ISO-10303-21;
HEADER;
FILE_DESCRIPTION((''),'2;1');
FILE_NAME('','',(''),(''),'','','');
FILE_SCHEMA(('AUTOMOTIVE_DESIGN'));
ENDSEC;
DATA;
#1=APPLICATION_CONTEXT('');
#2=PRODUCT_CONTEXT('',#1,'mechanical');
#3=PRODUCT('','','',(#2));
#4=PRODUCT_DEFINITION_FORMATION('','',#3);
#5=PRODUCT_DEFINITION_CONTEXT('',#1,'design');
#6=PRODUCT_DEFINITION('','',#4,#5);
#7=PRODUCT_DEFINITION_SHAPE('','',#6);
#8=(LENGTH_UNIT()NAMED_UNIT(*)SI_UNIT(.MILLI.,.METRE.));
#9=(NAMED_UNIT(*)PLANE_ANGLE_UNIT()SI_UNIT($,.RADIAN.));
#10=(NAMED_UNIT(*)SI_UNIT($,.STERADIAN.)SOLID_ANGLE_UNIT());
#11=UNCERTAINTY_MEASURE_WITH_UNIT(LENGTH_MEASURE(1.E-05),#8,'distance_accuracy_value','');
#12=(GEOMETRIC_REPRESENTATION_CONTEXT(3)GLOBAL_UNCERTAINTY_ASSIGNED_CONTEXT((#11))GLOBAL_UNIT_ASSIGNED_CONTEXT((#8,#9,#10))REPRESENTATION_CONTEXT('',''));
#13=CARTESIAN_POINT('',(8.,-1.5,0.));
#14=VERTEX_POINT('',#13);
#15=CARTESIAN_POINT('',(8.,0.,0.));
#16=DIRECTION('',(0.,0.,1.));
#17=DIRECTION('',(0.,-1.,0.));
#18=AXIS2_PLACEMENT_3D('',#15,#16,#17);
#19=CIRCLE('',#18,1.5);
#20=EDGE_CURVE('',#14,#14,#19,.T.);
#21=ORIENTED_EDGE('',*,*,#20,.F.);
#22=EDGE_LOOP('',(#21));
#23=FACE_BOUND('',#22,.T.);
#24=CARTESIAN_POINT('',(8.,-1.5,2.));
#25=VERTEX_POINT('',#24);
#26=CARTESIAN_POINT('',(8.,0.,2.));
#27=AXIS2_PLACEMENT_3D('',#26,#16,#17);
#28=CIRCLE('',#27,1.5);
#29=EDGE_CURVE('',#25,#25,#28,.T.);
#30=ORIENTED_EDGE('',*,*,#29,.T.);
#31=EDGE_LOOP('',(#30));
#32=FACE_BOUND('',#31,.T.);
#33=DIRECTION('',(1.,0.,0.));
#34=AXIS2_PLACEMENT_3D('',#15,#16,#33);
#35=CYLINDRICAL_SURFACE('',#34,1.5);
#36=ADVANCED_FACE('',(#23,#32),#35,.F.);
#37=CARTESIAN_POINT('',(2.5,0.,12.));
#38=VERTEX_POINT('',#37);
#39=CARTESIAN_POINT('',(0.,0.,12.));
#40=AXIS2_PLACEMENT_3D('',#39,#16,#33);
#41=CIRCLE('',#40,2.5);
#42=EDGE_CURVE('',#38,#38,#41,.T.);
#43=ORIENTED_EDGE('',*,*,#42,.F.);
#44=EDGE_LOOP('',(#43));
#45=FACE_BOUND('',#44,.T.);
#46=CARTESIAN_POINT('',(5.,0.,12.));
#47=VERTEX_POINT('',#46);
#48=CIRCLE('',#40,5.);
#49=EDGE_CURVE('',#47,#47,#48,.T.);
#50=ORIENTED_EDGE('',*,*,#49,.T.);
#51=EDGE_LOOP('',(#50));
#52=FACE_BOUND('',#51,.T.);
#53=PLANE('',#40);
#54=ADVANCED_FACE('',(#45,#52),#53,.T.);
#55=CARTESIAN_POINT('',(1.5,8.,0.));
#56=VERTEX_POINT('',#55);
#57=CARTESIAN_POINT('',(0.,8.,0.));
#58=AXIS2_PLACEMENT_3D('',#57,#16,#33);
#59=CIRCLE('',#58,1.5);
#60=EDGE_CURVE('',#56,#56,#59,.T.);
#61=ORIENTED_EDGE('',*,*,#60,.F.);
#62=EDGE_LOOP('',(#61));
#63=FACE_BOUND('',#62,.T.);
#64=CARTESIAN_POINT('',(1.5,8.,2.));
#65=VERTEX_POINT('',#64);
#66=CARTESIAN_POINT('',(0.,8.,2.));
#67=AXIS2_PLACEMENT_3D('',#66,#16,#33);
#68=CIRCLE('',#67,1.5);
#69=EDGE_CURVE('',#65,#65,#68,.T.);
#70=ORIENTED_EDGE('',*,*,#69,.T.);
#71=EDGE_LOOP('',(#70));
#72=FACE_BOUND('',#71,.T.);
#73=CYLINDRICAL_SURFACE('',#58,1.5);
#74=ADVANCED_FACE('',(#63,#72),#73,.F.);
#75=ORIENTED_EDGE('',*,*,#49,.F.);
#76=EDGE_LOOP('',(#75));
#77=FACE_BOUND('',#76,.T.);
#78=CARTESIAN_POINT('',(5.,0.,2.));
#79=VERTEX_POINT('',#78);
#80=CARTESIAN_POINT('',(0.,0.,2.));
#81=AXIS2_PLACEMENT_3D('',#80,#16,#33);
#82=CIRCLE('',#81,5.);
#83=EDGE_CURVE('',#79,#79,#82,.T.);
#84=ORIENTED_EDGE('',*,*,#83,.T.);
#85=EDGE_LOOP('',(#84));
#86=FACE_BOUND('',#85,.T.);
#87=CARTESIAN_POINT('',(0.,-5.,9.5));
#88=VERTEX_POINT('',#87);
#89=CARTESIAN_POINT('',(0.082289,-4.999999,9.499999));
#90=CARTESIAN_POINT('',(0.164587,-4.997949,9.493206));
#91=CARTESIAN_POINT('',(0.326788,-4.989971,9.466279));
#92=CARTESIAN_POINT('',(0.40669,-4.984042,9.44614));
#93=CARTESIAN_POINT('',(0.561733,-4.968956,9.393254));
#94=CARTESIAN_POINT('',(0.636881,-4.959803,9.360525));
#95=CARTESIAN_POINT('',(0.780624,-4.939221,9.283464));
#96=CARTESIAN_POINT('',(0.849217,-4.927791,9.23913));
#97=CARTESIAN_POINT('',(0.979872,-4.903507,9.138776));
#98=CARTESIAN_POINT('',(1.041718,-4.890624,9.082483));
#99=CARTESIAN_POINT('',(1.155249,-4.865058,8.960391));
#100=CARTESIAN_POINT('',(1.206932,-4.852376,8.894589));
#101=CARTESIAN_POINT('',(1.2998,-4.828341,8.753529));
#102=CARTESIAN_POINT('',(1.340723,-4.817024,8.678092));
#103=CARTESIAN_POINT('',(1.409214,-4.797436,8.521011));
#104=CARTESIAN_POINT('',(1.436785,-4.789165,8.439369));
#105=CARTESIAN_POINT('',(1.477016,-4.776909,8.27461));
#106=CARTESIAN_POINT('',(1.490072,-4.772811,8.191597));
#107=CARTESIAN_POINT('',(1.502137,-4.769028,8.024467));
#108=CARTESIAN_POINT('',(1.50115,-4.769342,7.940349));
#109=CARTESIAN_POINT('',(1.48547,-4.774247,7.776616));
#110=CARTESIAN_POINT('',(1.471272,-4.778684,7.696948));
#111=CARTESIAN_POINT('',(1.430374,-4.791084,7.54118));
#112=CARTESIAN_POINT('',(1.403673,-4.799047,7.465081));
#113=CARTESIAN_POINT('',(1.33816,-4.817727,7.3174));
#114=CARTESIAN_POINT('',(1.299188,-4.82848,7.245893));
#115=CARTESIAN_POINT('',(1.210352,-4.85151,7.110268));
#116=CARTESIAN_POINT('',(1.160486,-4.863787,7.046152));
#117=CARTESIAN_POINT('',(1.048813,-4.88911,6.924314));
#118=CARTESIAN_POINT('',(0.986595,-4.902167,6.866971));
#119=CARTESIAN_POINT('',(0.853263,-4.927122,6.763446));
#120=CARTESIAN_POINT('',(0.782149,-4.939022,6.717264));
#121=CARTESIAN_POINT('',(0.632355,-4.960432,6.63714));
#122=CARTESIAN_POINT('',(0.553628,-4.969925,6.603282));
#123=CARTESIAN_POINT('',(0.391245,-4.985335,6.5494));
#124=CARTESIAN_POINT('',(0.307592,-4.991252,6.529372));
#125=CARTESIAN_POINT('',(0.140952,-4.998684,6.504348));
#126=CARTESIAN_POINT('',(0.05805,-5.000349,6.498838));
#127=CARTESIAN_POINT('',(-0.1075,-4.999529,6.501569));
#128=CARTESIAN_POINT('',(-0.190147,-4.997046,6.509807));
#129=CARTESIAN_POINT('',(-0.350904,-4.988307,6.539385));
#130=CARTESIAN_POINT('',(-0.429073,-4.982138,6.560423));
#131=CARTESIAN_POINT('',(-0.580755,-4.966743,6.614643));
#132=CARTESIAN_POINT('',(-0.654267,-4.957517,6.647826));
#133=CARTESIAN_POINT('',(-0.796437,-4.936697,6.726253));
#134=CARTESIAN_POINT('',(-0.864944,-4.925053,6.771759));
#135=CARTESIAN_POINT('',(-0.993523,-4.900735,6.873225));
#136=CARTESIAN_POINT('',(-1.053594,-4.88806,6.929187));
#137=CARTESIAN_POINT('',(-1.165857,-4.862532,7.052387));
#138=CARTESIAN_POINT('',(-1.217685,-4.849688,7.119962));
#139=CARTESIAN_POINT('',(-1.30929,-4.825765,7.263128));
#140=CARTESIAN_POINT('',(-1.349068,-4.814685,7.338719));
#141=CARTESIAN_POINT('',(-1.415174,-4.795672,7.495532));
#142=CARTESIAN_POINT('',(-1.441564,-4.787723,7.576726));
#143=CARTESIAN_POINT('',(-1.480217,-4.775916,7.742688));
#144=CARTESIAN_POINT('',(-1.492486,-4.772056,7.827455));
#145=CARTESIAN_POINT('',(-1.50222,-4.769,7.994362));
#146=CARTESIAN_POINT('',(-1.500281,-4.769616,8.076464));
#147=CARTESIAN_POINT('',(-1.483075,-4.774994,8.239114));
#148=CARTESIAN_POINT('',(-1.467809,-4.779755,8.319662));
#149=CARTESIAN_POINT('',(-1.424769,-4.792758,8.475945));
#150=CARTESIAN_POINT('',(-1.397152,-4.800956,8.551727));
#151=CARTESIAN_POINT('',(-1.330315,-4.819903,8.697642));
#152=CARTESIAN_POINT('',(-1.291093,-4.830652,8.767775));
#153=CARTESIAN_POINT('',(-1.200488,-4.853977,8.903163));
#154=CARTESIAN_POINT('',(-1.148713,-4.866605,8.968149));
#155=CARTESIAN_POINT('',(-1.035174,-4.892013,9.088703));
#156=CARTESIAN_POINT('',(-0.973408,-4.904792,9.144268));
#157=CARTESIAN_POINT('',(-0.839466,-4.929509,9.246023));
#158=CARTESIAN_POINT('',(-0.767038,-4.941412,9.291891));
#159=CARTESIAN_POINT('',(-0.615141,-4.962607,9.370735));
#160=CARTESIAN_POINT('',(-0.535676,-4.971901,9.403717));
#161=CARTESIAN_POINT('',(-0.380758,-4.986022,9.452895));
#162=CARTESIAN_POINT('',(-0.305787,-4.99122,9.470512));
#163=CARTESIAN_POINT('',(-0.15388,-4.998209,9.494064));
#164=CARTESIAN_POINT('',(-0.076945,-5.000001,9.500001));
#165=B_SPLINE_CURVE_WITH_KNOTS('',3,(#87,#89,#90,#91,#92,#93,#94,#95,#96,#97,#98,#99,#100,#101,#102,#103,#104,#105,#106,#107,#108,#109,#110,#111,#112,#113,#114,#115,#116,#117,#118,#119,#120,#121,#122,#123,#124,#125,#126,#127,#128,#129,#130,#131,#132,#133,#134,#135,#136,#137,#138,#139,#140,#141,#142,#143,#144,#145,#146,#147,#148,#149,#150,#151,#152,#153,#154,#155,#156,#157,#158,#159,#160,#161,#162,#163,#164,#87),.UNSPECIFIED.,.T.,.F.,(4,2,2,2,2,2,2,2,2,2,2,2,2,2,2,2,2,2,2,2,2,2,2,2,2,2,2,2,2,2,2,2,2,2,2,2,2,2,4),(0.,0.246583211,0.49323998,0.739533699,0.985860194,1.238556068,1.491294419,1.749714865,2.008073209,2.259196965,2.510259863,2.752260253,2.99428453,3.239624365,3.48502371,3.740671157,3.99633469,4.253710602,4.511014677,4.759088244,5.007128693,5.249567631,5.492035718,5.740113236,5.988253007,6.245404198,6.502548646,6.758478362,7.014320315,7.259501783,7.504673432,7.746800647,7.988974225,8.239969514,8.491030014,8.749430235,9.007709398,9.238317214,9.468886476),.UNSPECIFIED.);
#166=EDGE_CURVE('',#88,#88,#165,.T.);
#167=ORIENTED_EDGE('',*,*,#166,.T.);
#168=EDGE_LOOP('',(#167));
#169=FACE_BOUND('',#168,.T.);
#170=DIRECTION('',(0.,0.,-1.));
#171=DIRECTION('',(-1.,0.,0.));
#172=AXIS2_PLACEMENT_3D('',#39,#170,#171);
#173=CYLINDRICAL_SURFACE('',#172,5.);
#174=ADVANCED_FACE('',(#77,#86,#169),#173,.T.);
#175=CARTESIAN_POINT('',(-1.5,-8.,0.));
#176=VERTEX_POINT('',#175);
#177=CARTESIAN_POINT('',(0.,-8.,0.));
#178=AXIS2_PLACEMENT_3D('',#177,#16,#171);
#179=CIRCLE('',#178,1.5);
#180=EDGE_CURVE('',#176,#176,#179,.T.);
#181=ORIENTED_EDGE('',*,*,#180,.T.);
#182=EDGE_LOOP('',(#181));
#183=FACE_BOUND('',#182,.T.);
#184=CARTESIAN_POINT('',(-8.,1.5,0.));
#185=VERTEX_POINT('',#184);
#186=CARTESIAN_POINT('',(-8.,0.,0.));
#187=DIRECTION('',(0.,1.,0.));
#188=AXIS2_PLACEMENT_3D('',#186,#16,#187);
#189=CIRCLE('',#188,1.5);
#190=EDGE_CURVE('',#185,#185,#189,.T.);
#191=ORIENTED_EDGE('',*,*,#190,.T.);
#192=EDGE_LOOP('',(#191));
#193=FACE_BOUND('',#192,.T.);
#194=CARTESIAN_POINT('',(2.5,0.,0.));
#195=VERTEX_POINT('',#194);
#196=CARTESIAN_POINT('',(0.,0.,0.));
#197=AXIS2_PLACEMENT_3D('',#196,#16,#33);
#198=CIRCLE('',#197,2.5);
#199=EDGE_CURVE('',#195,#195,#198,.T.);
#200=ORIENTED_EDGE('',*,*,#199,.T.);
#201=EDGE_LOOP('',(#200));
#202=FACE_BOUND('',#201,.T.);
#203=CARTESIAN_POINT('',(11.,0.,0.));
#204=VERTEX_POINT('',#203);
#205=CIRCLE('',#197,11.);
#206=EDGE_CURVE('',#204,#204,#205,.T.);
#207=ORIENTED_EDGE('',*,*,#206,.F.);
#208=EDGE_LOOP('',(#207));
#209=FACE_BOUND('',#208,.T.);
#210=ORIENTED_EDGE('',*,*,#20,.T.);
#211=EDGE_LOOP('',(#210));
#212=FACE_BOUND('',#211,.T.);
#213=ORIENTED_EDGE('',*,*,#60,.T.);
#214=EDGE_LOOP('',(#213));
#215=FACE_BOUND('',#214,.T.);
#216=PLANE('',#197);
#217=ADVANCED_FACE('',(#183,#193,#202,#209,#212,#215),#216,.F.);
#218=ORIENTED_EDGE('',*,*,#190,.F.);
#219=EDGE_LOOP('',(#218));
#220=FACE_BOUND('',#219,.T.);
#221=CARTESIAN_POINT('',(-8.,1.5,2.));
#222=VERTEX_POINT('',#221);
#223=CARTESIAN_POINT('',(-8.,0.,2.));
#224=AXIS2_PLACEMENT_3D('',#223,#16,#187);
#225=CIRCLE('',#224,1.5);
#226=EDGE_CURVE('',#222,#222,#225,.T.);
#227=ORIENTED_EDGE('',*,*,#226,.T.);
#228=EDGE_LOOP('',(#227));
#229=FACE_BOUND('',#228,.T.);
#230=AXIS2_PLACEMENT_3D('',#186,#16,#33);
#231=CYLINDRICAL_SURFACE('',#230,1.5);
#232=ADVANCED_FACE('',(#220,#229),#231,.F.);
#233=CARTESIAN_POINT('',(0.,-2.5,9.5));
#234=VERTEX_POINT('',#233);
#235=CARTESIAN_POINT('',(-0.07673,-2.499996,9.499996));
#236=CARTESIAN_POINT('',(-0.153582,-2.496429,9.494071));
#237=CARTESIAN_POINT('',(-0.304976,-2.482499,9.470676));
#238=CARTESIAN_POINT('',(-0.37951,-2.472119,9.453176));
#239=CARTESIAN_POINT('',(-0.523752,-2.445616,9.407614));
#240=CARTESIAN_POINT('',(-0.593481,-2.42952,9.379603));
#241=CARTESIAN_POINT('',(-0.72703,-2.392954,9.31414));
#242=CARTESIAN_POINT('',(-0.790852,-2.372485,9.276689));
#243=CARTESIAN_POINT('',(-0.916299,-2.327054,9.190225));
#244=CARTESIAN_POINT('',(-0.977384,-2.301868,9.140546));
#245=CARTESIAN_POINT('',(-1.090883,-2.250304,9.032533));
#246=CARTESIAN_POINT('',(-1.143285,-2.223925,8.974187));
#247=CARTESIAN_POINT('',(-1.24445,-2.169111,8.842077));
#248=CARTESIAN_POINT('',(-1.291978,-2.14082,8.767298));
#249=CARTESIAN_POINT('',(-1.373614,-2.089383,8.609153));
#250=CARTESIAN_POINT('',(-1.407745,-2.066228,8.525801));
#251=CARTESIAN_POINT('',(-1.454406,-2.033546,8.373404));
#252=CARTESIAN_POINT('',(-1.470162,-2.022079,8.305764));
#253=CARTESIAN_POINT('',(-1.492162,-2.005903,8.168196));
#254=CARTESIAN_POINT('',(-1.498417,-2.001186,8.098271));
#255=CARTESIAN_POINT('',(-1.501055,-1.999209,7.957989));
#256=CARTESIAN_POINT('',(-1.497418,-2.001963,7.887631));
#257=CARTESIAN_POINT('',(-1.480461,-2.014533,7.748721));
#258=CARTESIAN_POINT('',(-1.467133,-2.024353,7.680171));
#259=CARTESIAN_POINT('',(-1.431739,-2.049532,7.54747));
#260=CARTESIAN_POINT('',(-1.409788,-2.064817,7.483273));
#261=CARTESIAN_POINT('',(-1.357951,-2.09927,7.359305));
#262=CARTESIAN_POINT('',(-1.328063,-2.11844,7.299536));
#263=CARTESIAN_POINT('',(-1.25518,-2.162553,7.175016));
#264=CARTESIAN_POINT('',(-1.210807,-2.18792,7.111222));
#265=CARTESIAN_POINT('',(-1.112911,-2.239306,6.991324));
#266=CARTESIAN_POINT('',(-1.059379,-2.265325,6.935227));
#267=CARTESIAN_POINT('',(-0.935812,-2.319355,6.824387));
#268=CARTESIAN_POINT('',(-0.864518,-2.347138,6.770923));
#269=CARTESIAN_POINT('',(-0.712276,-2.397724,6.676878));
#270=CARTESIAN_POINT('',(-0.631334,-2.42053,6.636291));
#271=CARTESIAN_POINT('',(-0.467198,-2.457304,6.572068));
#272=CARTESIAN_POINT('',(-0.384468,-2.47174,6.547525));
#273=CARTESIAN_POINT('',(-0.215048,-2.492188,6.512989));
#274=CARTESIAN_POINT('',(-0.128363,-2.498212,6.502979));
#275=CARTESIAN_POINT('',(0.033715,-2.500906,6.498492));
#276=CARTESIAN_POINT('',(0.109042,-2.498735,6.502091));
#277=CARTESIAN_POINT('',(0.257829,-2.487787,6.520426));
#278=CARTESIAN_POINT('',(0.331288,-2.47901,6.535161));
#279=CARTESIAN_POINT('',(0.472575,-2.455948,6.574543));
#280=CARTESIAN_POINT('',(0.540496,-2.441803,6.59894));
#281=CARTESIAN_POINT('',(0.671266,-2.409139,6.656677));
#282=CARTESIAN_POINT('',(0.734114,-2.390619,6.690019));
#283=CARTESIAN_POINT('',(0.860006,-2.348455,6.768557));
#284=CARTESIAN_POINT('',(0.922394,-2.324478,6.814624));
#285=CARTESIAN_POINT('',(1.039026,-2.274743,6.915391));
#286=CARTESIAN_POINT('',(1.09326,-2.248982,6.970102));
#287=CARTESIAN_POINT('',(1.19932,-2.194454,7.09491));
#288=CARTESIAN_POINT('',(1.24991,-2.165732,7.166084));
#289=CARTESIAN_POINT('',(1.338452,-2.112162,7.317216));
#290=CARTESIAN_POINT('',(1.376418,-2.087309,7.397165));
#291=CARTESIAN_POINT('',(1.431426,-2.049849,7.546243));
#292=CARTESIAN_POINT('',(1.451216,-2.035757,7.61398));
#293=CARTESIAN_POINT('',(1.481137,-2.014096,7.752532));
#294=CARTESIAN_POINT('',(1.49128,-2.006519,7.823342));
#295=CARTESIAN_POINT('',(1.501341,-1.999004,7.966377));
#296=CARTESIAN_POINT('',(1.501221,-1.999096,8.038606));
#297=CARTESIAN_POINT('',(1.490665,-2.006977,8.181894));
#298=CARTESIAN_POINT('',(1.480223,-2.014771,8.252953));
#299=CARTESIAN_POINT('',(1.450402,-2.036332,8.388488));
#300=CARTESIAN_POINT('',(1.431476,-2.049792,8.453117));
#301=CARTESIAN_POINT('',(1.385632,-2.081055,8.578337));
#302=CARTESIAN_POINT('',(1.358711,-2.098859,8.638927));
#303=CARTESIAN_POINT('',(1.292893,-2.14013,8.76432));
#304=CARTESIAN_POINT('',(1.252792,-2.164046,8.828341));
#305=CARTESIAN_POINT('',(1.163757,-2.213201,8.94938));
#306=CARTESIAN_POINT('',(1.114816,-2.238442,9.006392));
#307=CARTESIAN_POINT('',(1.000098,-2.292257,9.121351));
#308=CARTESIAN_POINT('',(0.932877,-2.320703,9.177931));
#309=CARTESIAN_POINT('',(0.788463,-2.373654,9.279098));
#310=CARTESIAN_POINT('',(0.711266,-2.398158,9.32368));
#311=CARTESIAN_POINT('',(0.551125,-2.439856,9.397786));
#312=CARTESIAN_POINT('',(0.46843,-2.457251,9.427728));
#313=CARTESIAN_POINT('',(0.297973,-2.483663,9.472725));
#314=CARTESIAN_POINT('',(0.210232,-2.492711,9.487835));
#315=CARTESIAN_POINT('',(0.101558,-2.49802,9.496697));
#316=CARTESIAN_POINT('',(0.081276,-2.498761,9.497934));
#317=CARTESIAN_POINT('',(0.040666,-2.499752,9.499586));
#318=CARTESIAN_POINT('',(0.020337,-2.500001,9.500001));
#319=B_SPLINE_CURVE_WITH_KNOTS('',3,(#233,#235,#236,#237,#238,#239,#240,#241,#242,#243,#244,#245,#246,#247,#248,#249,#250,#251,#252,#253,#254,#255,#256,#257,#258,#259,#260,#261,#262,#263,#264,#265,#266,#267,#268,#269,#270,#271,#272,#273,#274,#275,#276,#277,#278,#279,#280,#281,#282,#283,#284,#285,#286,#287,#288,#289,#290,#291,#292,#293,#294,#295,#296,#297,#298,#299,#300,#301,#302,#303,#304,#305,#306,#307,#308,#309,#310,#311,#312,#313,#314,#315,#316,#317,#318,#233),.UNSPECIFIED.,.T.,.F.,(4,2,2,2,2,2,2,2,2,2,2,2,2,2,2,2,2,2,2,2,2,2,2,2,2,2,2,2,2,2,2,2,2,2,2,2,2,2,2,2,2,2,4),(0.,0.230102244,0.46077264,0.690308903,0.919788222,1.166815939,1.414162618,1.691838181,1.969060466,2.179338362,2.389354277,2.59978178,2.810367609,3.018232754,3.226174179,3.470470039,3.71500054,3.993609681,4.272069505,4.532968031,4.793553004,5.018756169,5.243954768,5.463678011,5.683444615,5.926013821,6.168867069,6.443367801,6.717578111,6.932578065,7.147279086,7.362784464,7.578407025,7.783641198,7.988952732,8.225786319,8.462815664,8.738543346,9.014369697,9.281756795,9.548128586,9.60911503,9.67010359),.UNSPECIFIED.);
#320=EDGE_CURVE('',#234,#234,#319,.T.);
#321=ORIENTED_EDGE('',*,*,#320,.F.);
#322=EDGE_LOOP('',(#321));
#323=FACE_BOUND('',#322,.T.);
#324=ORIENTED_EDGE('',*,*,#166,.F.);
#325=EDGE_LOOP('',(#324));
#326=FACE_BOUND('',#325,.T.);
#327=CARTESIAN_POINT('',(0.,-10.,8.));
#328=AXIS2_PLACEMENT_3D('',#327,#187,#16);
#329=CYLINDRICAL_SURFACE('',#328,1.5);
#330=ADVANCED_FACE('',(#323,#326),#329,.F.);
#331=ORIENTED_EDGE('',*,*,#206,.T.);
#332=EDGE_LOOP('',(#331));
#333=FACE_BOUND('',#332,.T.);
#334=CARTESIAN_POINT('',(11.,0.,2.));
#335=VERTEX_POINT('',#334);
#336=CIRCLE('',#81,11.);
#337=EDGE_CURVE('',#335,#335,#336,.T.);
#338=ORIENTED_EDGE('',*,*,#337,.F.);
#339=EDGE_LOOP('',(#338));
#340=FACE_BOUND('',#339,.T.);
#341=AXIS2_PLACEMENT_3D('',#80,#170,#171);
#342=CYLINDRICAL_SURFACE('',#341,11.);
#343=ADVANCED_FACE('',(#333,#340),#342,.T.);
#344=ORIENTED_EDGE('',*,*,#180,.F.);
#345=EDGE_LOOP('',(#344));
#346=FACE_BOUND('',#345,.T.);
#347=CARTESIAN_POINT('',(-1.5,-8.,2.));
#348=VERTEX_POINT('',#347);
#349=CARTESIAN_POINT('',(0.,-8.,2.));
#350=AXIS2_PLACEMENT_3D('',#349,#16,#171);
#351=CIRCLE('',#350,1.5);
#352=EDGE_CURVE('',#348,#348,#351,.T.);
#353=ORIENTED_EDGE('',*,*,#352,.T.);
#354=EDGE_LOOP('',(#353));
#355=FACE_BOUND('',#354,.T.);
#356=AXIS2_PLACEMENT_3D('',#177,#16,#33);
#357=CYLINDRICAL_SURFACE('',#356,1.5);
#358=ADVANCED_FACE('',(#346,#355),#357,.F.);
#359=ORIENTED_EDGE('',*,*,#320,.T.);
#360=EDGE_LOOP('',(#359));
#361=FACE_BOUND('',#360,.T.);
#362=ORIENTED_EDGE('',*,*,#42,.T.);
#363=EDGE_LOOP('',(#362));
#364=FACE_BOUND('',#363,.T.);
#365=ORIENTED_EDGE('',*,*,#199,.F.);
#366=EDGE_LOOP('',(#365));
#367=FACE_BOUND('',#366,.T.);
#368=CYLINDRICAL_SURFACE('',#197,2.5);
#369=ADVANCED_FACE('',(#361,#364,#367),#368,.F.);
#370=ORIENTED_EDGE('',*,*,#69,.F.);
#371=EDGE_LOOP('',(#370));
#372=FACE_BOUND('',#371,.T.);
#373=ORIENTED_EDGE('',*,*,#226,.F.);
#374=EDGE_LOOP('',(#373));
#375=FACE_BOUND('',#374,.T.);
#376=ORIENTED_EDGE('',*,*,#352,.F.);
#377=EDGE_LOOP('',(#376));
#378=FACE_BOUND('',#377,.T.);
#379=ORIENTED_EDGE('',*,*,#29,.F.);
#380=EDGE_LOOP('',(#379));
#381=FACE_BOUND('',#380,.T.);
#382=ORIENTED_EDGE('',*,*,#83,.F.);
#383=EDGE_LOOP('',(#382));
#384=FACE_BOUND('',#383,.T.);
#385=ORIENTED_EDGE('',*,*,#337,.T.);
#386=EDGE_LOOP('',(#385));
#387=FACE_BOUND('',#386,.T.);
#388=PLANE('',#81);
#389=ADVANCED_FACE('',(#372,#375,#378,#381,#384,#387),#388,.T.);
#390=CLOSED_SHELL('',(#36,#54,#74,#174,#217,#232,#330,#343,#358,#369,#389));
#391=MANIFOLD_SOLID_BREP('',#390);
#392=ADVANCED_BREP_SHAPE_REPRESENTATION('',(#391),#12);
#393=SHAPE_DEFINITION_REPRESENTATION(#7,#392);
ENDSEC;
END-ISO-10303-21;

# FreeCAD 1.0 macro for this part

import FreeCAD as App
import Part
import Sketcher

doc = App.newDocument("Part")
body = doc.addObject("PartDesign::Body", "Body")

sketch1 = body.newObject("Sketcher::SketchObject", "Sketch")
sketch1.AttachmentSupport = (doc.getObject("XY_Plane"), [""])
sketch1.MapMode = "FlatFace"
sketch1.addGeometry(Part.Circle(App.Vector(0, 0, 0), App.Vector(0, 0, 1), 11), False)
sketch1.addConstraint(Sketcher.Constraint("Coincident", 0, 3, -1, 1))
sketch1.addConstraint(Sketcher.Constraint("Diameter", 0, 22.0))
pad1 = body.newObject("PartDesign::Pad", "Pad")
pad1.Profile = sketch1
pad1.Length = 2

sketch2 = body.newObject("Sketcher::SketchObject", "Sketch001")
sketch2.AttachmentSupport = (doc.getObject("XY_Plane"), [""])
sketch2.MapMode = "FlatFace"
sketch2.AttachmentOffset = App.Placement(App.Vector(0, 0, 2), App.Rotation())
sketch2.addGeometry(Part.Circle(App.Vector(0, 0, 0), App.Vector(0, 0, 1), 5), False)
sketch2.addConstraint(Sketcher.Constraint("Coincident", 0, 3, -1, 1))
sketch2.addConstraint(Sketcher.Constraint("Diameter", 0, 10.0))
pad2 = body.newObject("PartDesign::Pad", "Pad001")
pad2.Profile = sketch2
pad2.Length = 10

sketch3 = body.newObject("Sketcher::SketchObject", "Sketch002")
sketch3.AttachmentSupport = (doc.getObject("XY_Plane"), [""])
sketch3.MapMode = "FlatFace"
sketch3.AttachmentOffset = App.Placement(App.Vector(0, 0, 12), App.Rotation())
sketch3.addGeometry(Part.Circle(App.Vector(0, 0, 0), App.Vector(0, 0, 1), 2.5), False)
sketch3.addConstraint(Sketcher.Constraint("Coincident", 0, 3, -1, 1))
sketch3.addConstraint(Sketcher.Constraint("Diameter", 0, 5.0))
pocket1 = body.newObject("PartDesign::Pocket", "Pocket")
pocket1.Profile = sketch3
pocket1.Type = "ThroughAll"

sketch4 = body.newObject("Sketcher::SketchObject", "Sketch003")
sketch4.AttachmentSupport = (doc.getObject("XZ_Plane"), [""])
sketch4.MapMode = "FlatFace"
sketch4.addGeometry(Part.Circle(App.Vector(0, 8, 0), App.Vector(0, 0, 1), 1.5), False)
sketch4.addConstraint(Sketcher.Constraint("PointOnObject", 0, 3, -2))
sketch4.addConstraint(Sketcher.Constraint("Diameter", 0, 3.0))
sketch4.addConstraint(Sketcher.Constraint("DistanceY", -1, 1, 0, 3, 8.0))
pocket2 = body.newObject("PartDesign::Pocket", "Pocket001")
pocket2.Profile = sketch4
pocket2.Length = 10
pocket2.Reversed = True

sketch5 = body.newObject("Sketcher::SketchObject", "Sketch004")
sketch5.AttachmentSupport = (doc.getObject("XY_Plane"), [""])
sketch5.MapMode = "FlatFace"
sketch5.AttachmentOffset = App.Placement(App.Vector(0, 0, 2), App.Rotation())
sketch5.addGeometry(Part.Circle(App.Vector(0, 8, 0), App.Vector(0, 0, 1), 1.5), False)
sketch5.addConstraint(Sketcher.Constraint("PointOnObject", 0, 3, -2))
sketch5.addConstraint(Sketcher.Constraint("Diameter", 0, 3.0))
sketch5.addConstraint(Sketcher.Constraint("DistanceY", -1, 1, 0, 3, 8.0))
pocket3 = body.newObject("PartDesign::Pocket", "Pocket002")
pocket3.Profile = sketch5
pocket3.Type = "ThroughAll"
doc.recompute()

polarpattern = body.newObject("PartDesign::PolarPattern", "PolarPattern")
polarpattern.Originals = [pocket3]
polarpattern.Axis = (doc.getObject("Z_Axis"), [""])
polarpattern.Angle = 360
polarpattern.Occurrences = 4
body.Tip = polarpattern

doc.recompute()
